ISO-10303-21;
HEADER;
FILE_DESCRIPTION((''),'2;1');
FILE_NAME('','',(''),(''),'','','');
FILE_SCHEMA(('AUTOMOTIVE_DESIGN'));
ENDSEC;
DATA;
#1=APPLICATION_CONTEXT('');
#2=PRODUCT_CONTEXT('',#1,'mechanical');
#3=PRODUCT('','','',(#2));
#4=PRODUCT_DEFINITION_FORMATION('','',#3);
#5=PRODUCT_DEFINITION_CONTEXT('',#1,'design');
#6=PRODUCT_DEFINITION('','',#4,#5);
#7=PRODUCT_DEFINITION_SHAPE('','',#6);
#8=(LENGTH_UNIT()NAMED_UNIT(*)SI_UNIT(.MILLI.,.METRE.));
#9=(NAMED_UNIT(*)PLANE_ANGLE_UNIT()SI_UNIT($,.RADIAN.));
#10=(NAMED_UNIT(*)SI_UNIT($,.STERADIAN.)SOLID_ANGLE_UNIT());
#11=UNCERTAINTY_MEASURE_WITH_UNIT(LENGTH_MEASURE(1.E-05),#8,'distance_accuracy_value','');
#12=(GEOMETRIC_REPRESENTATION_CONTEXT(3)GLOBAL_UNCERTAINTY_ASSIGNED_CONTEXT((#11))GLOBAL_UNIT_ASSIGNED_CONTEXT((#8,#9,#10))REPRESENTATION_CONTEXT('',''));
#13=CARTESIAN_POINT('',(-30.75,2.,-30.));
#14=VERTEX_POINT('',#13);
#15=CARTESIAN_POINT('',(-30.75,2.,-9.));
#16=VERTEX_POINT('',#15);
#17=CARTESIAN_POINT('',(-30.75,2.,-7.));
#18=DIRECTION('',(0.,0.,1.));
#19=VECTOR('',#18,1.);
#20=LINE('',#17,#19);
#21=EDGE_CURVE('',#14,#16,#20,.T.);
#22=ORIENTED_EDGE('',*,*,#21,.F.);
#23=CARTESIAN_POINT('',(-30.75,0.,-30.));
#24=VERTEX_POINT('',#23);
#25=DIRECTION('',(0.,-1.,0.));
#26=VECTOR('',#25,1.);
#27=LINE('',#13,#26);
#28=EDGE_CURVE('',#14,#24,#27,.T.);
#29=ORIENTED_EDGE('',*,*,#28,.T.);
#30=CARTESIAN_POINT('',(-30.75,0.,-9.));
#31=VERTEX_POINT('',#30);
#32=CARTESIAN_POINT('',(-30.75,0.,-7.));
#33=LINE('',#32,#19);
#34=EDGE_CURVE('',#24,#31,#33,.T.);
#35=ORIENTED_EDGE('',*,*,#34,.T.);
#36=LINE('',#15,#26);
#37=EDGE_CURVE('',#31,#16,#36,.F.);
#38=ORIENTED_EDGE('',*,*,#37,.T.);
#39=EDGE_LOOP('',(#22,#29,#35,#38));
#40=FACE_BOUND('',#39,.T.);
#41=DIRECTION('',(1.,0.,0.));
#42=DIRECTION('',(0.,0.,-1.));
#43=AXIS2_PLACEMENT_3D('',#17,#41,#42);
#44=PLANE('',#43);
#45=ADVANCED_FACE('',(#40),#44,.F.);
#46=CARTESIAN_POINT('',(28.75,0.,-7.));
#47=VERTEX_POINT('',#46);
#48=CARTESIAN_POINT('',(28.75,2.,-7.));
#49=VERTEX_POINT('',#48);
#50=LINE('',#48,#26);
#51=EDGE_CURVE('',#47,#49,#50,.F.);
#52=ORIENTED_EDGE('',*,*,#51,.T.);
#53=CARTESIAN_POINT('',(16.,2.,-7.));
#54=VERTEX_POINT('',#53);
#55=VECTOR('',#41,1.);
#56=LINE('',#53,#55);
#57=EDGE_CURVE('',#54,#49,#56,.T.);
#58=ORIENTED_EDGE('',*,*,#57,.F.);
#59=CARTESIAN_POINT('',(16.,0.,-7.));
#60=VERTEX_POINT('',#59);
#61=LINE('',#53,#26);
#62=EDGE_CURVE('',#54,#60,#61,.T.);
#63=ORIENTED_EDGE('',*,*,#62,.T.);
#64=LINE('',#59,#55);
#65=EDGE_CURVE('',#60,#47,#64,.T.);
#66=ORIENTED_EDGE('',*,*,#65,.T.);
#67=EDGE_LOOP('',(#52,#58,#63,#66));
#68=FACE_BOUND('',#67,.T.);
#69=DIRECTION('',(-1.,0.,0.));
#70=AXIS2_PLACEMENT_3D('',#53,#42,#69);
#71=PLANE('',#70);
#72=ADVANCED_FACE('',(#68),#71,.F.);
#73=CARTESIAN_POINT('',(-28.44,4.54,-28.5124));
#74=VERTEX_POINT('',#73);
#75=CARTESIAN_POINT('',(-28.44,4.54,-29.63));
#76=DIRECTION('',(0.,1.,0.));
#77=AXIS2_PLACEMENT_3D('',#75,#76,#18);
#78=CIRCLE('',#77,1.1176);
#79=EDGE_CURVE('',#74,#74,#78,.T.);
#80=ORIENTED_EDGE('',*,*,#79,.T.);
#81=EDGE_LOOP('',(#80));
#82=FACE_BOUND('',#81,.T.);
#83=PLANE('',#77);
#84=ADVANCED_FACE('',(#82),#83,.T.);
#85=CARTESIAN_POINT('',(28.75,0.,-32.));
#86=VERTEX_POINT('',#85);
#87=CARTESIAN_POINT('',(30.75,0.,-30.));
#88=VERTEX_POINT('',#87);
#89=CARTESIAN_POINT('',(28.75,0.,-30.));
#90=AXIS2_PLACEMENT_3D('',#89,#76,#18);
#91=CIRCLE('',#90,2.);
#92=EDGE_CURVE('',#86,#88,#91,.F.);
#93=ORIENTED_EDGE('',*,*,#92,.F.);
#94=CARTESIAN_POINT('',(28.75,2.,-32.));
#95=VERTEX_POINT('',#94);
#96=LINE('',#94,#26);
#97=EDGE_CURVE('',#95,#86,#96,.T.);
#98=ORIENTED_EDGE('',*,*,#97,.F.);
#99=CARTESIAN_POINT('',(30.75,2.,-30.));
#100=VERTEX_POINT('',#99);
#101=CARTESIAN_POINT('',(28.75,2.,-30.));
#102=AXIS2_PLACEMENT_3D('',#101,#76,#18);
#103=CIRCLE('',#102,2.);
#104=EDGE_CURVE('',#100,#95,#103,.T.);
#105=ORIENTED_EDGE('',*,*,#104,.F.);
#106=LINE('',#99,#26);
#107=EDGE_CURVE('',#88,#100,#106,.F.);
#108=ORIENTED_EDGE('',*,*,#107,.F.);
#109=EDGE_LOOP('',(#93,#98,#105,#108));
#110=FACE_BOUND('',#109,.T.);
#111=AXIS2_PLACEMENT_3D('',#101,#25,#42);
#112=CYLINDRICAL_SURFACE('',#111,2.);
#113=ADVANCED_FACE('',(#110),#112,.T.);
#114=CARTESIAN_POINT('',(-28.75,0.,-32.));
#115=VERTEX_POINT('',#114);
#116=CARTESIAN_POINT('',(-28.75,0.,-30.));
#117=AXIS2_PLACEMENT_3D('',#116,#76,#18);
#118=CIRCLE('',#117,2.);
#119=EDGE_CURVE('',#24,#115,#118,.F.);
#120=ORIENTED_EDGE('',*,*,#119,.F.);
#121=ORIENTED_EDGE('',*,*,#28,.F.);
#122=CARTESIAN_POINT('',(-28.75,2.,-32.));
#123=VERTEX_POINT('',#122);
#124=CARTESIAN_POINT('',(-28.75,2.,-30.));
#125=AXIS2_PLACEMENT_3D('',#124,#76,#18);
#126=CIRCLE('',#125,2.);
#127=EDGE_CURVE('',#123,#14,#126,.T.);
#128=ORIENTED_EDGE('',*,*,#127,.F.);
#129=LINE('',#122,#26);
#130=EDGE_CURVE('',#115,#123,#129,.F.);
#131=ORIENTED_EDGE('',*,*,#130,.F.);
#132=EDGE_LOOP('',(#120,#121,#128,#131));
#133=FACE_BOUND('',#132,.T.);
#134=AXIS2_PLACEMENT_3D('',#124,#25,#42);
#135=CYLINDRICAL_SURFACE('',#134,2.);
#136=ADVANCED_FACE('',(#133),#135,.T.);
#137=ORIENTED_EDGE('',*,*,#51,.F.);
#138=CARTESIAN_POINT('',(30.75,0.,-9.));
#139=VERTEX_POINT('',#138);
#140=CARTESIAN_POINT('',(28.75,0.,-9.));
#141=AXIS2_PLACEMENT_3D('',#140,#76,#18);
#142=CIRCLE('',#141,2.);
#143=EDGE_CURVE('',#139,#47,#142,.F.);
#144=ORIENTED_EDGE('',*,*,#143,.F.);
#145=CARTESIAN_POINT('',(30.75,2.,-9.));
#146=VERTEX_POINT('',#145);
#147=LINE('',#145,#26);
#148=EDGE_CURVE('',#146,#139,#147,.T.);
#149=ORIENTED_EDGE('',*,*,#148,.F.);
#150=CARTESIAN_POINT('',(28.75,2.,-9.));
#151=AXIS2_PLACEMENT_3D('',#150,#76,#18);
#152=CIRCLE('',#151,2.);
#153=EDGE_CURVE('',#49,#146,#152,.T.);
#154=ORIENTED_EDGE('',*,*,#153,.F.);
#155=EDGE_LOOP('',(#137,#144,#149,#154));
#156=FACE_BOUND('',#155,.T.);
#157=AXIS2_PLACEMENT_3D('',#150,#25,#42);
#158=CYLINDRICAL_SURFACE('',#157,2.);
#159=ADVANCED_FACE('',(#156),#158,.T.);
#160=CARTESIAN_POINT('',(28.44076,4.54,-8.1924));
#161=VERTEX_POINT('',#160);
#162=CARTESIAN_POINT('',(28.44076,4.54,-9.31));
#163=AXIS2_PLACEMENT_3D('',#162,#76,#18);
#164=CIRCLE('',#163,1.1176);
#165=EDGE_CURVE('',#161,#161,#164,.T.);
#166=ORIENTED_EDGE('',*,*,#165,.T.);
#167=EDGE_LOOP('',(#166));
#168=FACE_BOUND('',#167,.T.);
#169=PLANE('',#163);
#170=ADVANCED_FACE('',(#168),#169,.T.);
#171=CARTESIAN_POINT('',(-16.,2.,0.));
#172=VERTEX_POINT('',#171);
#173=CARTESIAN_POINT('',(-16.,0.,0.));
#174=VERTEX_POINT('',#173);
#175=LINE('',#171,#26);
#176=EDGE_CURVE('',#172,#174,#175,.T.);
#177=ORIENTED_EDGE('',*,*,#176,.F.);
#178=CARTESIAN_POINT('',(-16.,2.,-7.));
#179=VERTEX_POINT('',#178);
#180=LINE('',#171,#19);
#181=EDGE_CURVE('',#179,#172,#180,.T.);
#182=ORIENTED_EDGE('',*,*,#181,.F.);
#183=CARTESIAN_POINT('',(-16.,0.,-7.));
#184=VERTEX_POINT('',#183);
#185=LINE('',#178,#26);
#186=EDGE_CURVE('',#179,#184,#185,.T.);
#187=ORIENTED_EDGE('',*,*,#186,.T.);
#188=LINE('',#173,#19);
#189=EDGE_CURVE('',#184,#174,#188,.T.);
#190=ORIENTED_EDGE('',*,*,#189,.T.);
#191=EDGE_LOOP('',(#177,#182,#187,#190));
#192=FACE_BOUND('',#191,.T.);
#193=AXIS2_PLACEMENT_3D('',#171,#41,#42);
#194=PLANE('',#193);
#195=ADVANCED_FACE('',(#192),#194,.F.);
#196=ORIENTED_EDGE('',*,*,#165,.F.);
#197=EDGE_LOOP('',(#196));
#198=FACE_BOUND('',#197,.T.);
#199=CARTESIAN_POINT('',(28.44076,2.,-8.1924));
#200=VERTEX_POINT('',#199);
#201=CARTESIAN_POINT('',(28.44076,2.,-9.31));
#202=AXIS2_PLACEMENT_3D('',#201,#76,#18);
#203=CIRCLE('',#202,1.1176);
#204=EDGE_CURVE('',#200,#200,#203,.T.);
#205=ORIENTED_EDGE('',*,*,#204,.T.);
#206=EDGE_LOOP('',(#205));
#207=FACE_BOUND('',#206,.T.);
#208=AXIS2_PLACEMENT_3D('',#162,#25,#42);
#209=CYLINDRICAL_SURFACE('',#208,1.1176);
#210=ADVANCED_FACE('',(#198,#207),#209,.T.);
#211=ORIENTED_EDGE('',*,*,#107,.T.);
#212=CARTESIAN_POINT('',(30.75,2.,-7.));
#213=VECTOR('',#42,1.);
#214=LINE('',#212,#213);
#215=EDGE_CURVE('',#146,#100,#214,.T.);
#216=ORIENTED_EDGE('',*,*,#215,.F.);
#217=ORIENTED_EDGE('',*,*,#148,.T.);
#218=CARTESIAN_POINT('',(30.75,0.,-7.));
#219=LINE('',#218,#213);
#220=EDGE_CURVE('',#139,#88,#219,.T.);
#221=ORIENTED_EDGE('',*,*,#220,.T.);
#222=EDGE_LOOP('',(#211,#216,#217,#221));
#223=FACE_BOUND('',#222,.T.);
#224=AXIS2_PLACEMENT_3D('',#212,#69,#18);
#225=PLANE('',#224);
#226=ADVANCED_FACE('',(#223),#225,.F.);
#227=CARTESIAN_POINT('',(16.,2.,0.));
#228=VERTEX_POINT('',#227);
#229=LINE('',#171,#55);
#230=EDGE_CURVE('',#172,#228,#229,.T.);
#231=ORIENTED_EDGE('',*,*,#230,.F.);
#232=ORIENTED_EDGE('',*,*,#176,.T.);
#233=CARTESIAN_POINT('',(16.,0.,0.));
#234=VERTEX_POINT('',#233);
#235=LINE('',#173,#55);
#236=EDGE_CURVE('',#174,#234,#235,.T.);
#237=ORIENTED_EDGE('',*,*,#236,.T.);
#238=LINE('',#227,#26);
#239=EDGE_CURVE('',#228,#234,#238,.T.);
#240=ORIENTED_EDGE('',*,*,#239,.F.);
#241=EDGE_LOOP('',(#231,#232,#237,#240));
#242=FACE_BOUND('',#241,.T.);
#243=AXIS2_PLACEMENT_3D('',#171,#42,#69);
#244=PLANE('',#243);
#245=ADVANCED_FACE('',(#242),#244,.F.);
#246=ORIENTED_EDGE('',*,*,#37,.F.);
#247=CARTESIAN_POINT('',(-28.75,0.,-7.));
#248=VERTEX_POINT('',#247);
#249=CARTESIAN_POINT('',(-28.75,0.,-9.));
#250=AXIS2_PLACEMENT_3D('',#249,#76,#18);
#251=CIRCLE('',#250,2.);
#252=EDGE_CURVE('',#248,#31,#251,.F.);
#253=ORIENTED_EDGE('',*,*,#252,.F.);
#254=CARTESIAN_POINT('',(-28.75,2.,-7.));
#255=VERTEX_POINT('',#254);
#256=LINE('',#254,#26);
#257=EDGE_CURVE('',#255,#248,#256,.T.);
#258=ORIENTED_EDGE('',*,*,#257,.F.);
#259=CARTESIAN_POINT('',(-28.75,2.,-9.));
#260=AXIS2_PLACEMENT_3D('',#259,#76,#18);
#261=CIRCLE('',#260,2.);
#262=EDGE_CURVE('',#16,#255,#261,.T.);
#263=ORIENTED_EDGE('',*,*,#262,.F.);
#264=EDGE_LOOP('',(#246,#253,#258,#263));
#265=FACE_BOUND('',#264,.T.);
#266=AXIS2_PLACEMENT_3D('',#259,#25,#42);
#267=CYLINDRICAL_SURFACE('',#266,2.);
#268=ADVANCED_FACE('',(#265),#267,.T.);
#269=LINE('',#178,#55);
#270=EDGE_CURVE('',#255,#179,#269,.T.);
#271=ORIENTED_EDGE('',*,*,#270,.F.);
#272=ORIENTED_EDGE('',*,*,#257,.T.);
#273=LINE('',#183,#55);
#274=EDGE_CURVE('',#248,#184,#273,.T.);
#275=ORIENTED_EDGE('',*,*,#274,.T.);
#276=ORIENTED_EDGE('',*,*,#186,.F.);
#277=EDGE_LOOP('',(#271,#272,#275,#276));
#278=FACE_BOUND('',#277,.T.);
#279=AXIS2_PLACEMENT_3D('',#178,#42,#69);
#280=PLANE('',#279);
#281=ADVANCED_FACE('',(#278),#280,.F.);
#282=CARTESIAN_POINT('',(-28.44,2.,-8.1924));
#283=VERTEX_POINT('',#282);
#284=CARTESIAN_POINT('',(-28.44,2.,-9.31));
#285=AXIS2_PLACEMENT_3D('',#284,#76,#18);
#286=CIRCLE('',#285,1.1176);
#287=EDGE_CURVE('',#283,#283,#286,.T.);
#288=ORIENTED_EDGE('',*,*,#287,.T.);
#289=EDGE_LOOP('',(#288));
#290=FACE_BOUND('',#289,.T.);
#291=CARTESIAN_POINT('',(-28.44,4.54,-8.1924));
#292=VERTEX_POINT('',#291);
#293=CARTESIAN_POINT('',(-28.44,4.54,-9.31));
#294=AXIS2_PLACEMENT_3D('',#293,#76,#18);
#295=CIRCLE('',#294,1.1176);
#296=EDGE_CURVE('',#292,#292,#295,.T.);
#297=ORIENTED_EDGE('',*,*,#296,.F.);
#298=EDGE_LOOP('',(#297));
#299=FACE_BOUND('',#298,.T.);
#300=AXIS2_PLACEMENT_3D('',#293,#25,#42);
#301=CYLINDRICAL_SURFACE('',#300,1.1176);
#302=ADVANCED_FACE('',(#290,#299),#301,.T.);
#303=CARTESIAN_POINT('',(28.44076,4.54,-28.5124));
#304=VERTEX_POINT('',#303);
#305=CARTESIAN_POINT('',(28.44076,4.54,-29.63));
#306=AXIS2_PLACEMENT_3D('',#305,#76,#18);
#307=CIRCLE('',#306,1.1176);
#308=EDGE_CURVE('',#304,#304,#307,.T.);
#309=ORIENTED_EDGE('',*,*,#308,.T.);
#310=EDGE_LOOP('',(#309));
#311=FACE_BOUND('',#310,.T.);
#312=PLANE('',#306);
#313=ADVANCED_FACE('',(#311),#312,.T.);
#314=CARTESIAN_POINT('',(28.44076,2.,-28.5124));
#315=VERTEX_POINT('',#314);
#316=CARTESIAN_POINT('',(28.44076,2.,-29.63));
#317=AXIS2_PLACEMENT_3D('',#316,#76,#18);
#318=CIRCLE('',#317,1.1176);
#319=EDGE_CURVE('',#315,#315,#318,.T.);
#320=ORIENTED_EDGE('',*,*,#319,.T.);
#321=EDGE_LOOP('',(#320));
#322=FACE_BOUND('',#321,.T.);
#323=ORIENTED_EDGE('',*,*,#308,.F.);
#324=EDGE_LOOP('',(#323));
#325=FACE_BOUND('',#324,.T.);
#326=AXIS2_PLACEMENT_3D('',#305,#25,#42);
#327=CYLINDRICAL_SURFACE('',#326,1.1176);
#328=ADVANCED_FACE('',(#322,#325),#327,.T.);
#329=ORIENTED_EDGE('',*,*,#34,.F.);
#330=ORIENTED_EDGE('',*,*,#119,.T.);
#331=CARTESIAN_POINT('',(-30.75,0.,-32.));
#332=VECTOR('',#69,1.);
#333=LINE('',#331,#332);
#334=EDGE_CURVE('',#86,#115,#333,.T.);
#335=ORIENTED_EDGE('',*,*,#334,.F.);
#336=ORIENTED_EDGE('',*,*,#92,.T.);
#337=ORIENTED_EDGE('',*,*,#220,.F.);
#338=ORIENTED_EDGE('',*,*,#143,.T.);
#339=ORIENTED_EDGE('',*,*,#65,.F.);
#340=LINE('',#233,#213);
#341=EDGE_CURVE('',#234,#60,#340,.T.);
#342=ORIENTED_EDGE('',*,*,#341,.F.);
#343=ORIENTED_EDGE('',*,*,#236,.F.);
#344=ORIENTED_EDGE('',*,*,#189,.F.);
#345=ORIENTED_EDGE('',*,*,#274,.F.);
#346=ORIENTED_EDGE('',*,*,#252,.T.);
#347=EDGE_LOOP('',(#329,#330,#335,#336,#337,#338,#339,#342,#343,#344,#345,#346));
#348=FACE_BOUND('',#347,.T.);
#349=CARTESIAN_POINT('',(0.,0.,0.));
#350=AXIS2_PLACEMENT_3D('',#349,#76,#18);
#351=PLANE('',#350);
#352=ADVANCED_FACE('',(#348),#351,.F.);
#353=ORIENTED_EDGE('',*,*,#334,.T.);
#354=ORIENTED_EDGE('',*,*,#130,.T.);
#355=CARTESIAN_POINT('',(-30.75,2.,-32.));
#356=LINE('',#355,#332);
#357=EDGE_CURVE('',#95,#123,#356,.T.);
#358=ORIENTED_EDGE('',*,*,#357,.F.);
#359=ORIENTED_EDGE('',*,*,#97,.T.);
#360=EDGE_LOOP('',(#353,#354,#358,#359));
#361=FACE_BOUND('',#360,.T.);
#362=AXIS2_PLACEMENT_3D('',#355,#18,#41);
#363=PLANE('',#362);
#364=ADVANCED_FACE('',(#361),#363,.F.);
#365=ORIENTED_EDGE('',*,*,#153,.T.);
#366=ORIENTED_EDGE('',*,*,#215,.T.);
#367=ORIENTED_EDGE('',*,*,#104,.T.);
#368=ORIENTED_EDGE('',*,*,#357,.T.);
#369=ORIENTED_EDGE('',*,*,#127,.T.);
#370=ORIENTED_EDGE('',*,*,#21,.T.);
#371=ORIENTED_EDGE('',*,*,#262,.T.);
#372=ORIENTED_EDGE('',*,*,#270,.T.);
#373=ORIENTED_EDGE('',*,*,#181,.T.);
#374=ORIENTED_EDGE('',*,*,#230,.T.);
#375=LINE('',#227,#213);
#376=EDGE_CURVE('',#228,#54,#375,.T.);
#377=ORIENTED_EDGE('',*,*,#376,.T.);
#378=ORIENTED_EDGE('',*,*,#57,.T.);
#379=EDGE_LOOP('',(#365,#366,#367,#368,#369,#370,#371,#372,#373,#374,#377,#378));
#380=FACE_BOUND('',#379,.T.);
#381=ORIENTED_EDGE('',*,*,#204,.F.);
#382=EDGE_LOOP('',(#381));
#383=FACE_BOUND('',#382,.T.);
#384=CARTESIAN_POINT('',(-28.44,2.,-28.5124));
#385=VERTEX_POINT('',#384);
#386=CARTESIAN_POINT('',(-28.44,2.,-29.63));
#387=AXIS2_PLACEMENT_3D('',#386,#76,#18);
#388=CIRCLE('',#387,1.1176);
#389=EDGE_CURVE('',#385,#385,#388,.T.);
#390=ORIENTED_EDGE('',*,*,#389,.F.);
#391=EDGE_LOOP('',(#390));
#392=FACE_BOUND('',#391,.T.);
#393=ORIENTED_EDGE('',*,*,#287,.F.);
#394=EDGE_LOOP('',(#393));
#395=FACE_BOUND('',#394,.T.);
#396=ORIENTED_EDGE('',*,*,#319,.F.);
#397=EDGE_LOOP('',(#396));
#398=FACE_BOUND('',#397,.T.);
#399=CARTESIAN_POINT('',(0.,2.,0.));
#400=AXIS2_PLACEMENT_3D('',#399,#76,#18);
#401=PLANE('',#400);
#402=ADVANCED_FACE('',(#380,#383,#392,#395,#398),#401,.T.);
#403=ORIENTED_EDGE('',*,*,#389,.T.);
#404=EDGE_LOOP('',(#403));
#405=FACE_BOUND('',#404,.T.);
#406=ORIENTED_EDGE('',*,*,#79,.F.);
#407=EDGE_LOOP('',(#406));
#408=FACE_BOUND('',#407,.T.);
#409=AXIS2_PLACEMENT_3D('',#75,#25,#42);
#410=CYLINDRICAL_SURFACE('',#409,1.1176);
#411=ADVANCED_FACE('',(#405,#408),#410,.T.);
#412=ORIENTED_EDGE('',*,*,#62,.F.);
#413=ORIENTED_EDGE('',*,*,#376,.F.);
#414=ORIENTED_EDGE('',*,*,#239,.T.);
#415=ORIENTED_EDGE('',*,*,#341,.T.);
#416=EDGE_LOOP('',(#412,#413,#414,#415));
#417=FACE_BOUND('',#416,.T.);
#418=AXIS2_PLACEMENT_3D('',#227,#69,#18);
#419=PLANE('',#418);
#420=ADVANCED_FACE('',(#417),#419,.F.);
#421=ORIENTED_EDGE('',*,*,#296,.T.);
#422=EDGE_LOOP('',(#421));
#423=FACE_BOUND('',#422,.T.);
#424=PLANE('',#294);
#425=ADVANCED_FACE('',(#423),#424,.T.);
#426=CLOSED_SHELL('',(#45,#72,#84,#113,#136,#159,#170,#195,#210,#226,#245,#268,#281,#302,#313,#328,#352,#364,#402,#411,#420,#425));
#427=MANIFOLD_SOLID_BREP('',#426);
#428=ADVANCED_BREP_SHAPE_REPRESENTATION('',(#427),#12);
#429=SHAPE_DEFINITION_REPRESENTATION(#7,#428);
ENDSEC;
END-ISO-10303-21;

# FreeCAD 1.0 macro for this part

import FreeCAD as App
import Part
import Sketcher
from FreeCAD import Vector


def edges_at(feature, points):
    """Names of the edges that pass closest to the given points."""
    edges = feature.Shape.Edges
    near = lambda p: min(range(len(edges)), key=lambda i: edges[i].distToShape(Part.Vertex(*p))[0])
    return sorted({f"Edge{near(p) + 1}" for p in points})


def add_polygon(sketch, points):
    """Adds a closed chain of lines whose ends are joined by coincident constraints."""
    first, n = sketch.GeometryCount, len(points)
    for a, b in zip(points, points[1:] + points[:1]):
        sketch.addGeometry(Part.LineSegment(App.Vector(*a, 0), App.Vector(*b, 0)), False)
    for i in range(n):
        sketch.addConstraint(Sketcher.Constraint("Coincident", first + i, 2, first + (i + 1) % n, 1))

doc = App.newDocument("Part")
body = doc.addObject("PartDesign::Body", "Body")

# Sketch on XZ plane
sketch1 = doc.addObject("Sketcher::SketchObject", "Sketch")
body.addObject(sketch1)
sketch1.AttachmentSupport = (doc.XZ_Plane, [""])
sketch1.MapMode = "FlatFace"
add_polygon(sketch1, [(-16, 0), (16, 0), (16, -7), (31, -7), (31, -32), (-31, -32), (-31, -7), (-16, -7)])  # lines 0-7
sketch1.addConstraint([
    Sketcher.Constraint("Horizontal", 0),
    Sketcher.Constraint("Vertical", 1),
    Sketcher.Constraint("Horizontal", 2),
    Sketcher.Constraint("Vertical", 3),
    Sketcher.Constraint("Horizontal", 4),
    Sketcher.Constraint("Vertical", 5),
    Sketcher.Constraint("Horizontal", 6),
    Sketcher.Constraint("Vertical", 7),
    Sketcher.Constraint("Symmetric", 0, 2, 7, 2, -1, 1),
    Sketcher.Constraint("Symmetric", 2, 2, 5, 2, -2),
    Sketcher.Constraint("DistanceX", 0, 1, 0, 2, 32.0),
    Sketcher.Constraint("DistanceY", 1, 2, 1, 1, 7.0),
    Sketcher.Constraint("DistanceY", 3, 2, 3, 1, 25.0),
    Sketcher.Constraint("DistanceX", 4, 2, 4, 1, 61.5),
])
pad1 = doc.addObject("PartDesign::Pad", "Pad")
body.addObject(pad1)
pad1.Profile = sketch1
pad1.Length = 2
pad1.Reversed = True

# Sketch on XZ plane
sketch2 = doc.addObject("Sketcher::SketchObject", "Sketch001")
body.addObject(sketch2)
sketch2.AttachmentSupport = (doc.XZ_Plane, [""])
sketch2.MapMode = "FlatFace"
sketch2.AttachmentOffset = App.Placement(Vector(0, 0, -2), App.Rotation())
sketch2.addGeometry([
    Part.Circle(Vector(-28.4, -9.3, 0), Vector(0, 0, 1), 1.1),
    Part.Circle(Vector(-28.4, -29.6, 0), Vector(0, 0, 1), 1.1),
    Part.Circle(Vector(28.4, -29.6, 0), Vector(0, 0, 1), 1.1),
    Part.Circle(Vector(28.4, -9.3, 0), Vector(0, 0, 1), 1.1),
], False)
sketch2.addConstraint([
    Sketcher.Constraint("Equal", 0, 1),
    Sketcher.Constraint("Equal", 1, 2),
    Sketcher.Constraint("Equal", 2, 3),
    Sketcher.Constraint("Horizontal", 1, 3, 2, 3),
    Sketcher.Constraint("Horizontal", 0, 3, 3, 3),
    Sketcher.Constraint("Vertical", 0, 3, 1, 3),
    Sketcher.Constraint("Vertical", 2, 3, 3, 3),
    Sketcher.Constraint("Diameter", 0, 2.2352),
    Sketcher.Constraint("DistanceX", 0, 3, -1, 1, 28.44),
    Sketcher.Constraint("DistanceY", 0, 3, -1, 1, 9.31),
    Sketcher.Constraint("DistanceY", 1, 3, -1, 1, 29.63),
    Sketcher.Constraint("DistanceX", -1, 1, 2, 3, 28.44076),
])
pad2 = doc.addObject("PartDesign::Pad", "Pad001")
body.addObject(pad2)
pad2.Profile = sketch2
pad2.Length = 2.54
pad2.Reversed = True
doc.recompute()

fillet = doc.addObject("PartDesign::Fillet", "Fillet")
body.addObject(fillet)
fillet.Base = (pad2, edges_at(pad2, [
    (-30.75, 1, -7),
    (-30.75, 1, -32),
    (30.75, 1, -32),
    (30.75, 1, -7),
]))
fillet.Radius = 2

doc.recompute()
